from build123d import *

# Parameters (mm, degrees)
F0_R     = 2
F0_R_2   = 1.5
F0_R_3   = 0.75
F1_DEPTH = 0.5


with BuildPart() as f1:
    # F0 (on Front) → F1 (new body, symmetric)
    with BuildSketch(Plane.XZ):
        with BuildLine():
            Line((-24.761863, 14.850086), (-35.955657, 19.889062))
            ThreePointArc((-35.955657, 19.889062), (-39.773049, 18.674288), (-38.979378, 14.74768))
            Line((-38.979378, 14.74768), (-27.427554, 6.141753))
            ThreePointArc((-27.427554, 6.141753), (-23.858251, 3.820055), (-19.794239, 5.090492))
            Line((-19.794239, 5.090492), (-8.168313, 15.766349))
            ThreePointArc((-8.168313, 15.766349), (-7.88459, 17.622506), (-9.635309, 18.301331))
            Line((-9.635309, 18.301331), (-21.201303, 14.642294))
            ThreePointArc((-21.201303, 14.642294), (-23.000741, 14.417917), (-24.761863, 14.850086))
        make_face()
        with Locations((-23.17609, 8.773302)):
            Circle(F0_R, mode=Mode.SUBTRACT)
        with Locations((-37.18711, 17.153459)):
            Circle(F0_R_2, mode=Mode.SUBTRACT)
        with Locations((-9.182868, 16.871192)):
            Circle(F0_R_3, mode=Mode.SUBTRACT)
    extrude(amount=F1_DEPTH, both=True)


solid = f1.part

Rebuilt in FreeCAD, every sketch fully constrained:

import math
import FreeCAD as App
import Part
import Sketcher

V = App.Vector

doc = App.newDocument("Part")
body = doc.addObject("PartDesign::Body", "Body")

sketch1 = body.newObject("Sketcher::SketchObject", "Sketch")
sketch1.AttachmentSupport = (doc.getObject("XZ_Plane"), [""])
sketch1.MapMode = "FlatFace"
sketch1.addGeometry(Part.LineSegment(V(-24.761863, 14.850086, 0), V(-35.955657, 19.889062, 0)), False)
sketch1.addGeometry(Part.ArcOfCircle(Part.Circle(V(-37.18711, 17.153459, 0), V(0, 0, 1), 3), math.radians(65.764728), math.radians(233.314471)), False)
sketch1.addGeometry(Part.LineSegment(V(-38.979378, 14.74768, 0), V(-27.427554, 6.141753, 0)), False)
sketch1.addGeometry(Part.ArcOfCircle(Part.Circle(V(-23.176089, 8.773302, 0), V(0, 0, 1), 5), math.radians(-148.243538), math.radians(-47.439369)), False)
sketch1.addGeometry(Part.LineSegment(V(-19.794239, 5.090492, 0), V(-8.168313, 15.766349, 0)), False)
sketch1.addGeometry(Part.ArcOfCircle(Part.Circle(V(-9.182869, 16.871192, 0), V(0, 0, 1), 1.5), math.radians(-47.439344), math.radians(107.555342)), False)
sketch1.addGeometry(Part.LineSegment(V(-9.635309, 18.301331, 0), V(-21.201303, 14.642294, 0)), False)
sketch1.addGeometry(Part.ArcOfCircle(Part.Circle(V(-22.709439, 19.409433, 0), V(0, 0, 1), 5.000009), math.radians(-114.235245), math.radians(-72.444668)), False)
sketch1.addGeometry(Part.Circle(V(-23.17609, 8.773302, 0), V(0, 0, 1), 2), False)
sketch1.addGeometry(Part.Circle(V(-37.18711, 17.153459, 0), V(0, 0, 1), 1.5), False)
sketch1.addGeometry(Part.Circle(V(-9.182868, 16.871192, 0), V(0, 0, 1), 0.75), False)
sketch1.addConstraint(Sketcher.Constraint("Tangent", 0, 2, 1, 1))
sketch1.addConstraint(Sketcher.Constraint("Tangent", 1, 2, 2, 1))
sketch1.addConstraint(Sketcher.Constraint("Coincident", 2, 2, 3, 1))
sketch1.addConstraint(Sketcher.Constraint("Tangent", 3, 2, 4, 1))
sketch1.addConstraint(Sketcher.Constraint("Tangent", 4, 2, 5, 1))
sketch1.addConstraint(Sketcher.Constraint("Tangent", 5, 2, 6, 1))
sketch1.addConstraint(Sketcher.Constraint("Tangent", 6, 2, 7, 2))
sketch1.addConstraint(Sketcher.Constraint("Tangent", 7, 1, 0, 1))
sketch1.addConstraint(Sketcher.Constraint("Coincident", 8, 3, 3, 3))
sketch1.addConstraint(Sketcher.Constraint("Coincident", 9, 3, 1, 3))
sketch1.addConstraint(Sketcher.Constraint("Coincident", 10, 3, 5, 3))
sketch1.addConstraint(Sketcher.Constraint("Equal", 5, 9))
sketch1.addConstraint(Sketcher.Constraint("Diameter", 8, 4.0))
sketch1.addConstraint(Sketcher.Constraint("Diameter", 9, 3.0))
sketch1.addConstraint(Sketcher.Constraint("Radius", 1, 3.0))
sketch1.addConstraint(Sketcher.Constraint("Radius", 3, 5.0))
sketch1.addConstraint(Sketcher.Constraint("Diameter", 10, 1.5))
sketch1.addConstraint(Sketcher.Constraint("Radius", 7, 5.000009))
sketch1.addConstraint(Sketcher.Constraint("DistanceY", -1, 1, 8, 3, 8.773302))
sketch1.addConstraint(Sketcher.Constraint("DistanceX", 7, 3, 3, 2, 2.9152))
sketch1.addConstraint(Sketcher.Constraint("DistanceY", 3, 2, 5, 3, 11.7807))
sketch1.addConstraint(Sketcher.Constraint("Distance", 0, 12.275679))
sketch1.addConstraint(Sketcher.Constraint("Distance", 2, 14.40509))
sketch1.addConstraint(Sketcher.Constraint("DistanceX", 1, 3, -1, 1, 37.18711))
sketch1.addConstraint(Sketcher.Constraint("DistanceY", -1, 1, 1, 3, 17.153459))
sketch1.addConstraint(Sketcher.Constraint("DistanceX", 3, 3, -1, 1, 23.176089))
sketch1.addConstraint(Sketcher.Constraint("DistanceX", 5, 3, -1, 1, 9.182869))
pad1 = body.newObject("PartDesign::Pad", "Pad")
pad1.Profile = sketch1
pad1.Length = 1
pad1.Midplane = True

doc.recompute()
